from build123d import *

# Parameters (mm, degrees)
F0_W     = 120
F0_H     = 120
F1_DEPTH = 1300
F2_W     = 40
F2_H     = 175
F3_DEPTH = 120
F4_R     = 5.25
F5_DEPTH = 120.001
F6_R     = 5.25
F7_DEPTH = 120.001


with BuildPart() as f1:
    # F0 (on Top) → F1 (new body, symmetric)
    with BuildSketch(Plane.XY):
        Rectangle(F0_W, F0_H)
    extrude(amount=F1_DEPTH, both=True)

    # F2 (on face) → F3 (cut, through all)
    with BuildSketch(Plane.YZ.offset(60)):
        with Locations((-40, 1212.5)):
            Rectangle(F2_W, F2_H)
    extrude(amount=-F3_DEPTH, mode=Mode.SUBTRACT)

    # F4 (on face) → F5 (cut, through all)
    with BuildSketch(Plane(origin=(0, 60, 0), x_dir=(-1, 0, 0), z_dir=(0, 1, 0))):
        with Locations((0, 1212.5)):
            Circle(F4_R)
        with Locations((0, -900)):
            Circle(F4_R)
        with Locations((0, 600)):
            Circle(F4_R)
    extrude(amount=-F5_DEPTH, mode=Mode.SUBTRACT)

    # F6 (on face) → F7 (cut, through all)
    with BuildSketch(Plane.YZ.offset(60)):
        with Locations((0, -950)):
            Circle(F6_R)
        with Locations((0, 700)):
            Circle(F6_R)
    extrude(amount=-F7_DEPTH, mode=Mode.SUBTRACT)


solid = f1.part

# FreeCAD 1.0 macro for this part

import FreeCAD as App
import Part
import Sketcher

V = App.Vector
Q = App.Units.Quantity

doc = App.newDocument("Part")
params = doc.addObject("Spreadsheet::Sheet", "Params")
for row, (alias, value) in enumerate([
    ("sketch1_width", "120 mm"),
    ("pad1_length", "2600 mm"),
    ("sketch2_width", "40 mm"),
    ("sketch2_height", "175 mm"),
    ("sketch3_diameter", "10.5 mm"),
    ("sketch4_diameter", "10.5 mm"),
], start=1):
    params.set(f"A{row}", alias)
    params.set(f"B{row}", "=" + value)
    params.setAlias(f"B{row}", alias)

body = doc.addObject("PartDesign::Body", "Body")

# Sketch on XY plane
sketch1 = body.newObject("Sketcher::SketchObject", "Sketch")
sketch1.AttachmentSupport = (doc.getObject("XY_Plane"), [""])
sketch1.MapMode = "FlatFace"
sketch1.addGeometry([
    Part.LineSegment(V(-60, 60, 0), V(-60, -60, 0)),
    Part.LineSegment(V(-60, -60, 0), V(60, -60, 0)),
    Part.LineSegment(V(60, -60, 0), V(60, 60, 0)),
    Part.LineSegment(V(60, 60, 0), V(-60, 60, 0)),
], False)
sketch1.addConstraint([
    Sketcher.Constraint("Coincident", 0, 2, 1, 1),
    Sketcher.Constraint("Coincident", 1, 2, 2, 1),
    Sketcher.Constraint("Coincident", 2, 2, 3, 1),
    Sketcher.Constraint("Coincident", 3, 2, 0, 1),
    Sketcher.Constraint("Vertical", 0),
    Sketcher.Constraint("Horizontal", 1),
    Sketcher.Constraint("Vertical", 2),
    Sketcher.Constraint("Horizontal", 3),
    Sketcher.Constraint("Symmetric", 0, 2, 2, 2, -1, 1),
    Sketcher.Constraint("Equal", 3, 0),
    Sketcher.Constraint("DistanceX", 1, 1, 1, 2, Q("120 mm")),
])
sketch1.setExpression("Constraints[10]", "Params.sketch1_width")
pad1 = body.newObject("PartDesign::Pad", "Pad")
pad1.Profile = sketch1
pad1.setExpression("Length", "Params.pad1_length")
pad1.Midplane = True

# Sketch on YZ plane
sketch2 = body.newObject("Sketcher::SketchObject", "Sketch001")
sketch2.AttachmentSupport = (doc.getObject("YZ_Plane"), [""])
sketch2.MapMode = "FlatFace"
sketch2.AttachmentOffset = App.Placement(V(0, 0, 60), App.Rotation())
sketch2.addGeometry([
    Part.LineSegment(V(-60, 1300, 0), V(-60, 1125, 0)),
    Part.LineSegment(V(-60, 1125, 0), V(-20, 1125, 0)),
    Part.LineSegment(V(-20, 1125, 0), V(-20, 1300, 0)),
    Part.LineSegment(V(-20, 1300, 0), V(-60, 1300, 0)),
], False)
sketch2.addConstraint([
    Sketcher.Constraint("Coincident", 0, 2, 1, 1),
    Sketcher.Constraint("Coincident", 1, 2, 2, 1),
    Sketcher.Constraint("Coincident", 2, 2, 3, 1),
    Sketcher.Constraint("Coincident", 3, 2, 0, 1),
    Sketcher.Constraint("Vertical", 0),
    Sketcher.Constraint("Horizontal", 1),
    Sketcher.Constraint("Vertical", 2),
    Sketcher.Constraint("Horizontal", 3),
    Sketcher.Constraint("DistanceX", 1, 1, 1, 2, Q("40 mm")),
    Sketcher.Constraint("DistanceY", 0, 2, 0, 1, Q("175 mm")),
    Sketcher.Constraint("DistanceX", 0, 2, -1, 1, Q("60 mm")),
    Sketcher.Constraint("DistanceY", -1, 1, 0, 2, Q("1125 mm")),
])
sketch2.setExpression("Constraints[8]", "Params.sketch2_width")
sketch2.setExpression("Constraints[9]", "Params.sketch2_height")
pocket1 = body.newObject("PartDesign::Pocket", "Pocket")
pocket1.Profile = sketch2
pocket1.Type = "ThroughAll"

# Sketch on XZ plane
sketch3 = body.newObject("Sketcher::SketchObject", "Sketch002")
sketch3.AttachmentSupport = (doc.getObject("XZ_Plane"), [""])
sketch3.MapMode = "FlatFace"
sketch3.AttachmentOffset = App.Placement(V(0, 0, -60), App.Rotation())
sketch3.addGeometry([
    Part.Circle(V(0, 1212, 0), V(0, 0, 1), 5),
    Part.Circle(V(0, -900, 0), V(0, 0, 1), 5),
    Part.Circle(V(0, 600, 0), V(0, 0, 1), 5),
], False)
sketch3.addConstraint([
    Sketcher.Constraint("Equal", 0, 1),
    Sketcher.Constraint("Equal", 1, 2),
    Sketcher.Constraint("PointOnObject", 0, 3, -2),
    Sketcher.Constraint("PointOnObject", 1, 3, -2),
    Sketcher.Constraint("PointOnObject", 2, 3, -2),
    Sketcher.Constraint("Diameter", 0, Q("10.5 mm")),
    Sketcher.Constraint("DistanceY", 1, 3, -1, 1, Q("900 mm")),
    Sketcher.Constraint("DistanceY", -1, 1, 2, 3, Q("600 mm")),
    Sketcher.Constraint("DistanceY", -1, 1, 0, 3, Q("1212.5 mm")),
])
sketch3.setExpression("Constraints[5]", "Params.sketch3_diameter")
pocket2 = body.newObject("PartDesign::Pocket", "Pocket001")
pocket2.Profile = sketch3
pocket2.Type = "ThroughAll"
pocket2.Reversed = True

# Sketch on YZ plane
sketch4 = body.newObject("Sketcher::SketchObject", "Sketch003")
sketch4.AttachmentSupport = (doc.getObject("YZ_Plane"), [""])
sketch4.MapMode = "FlatFace"
sketch4.AttachmentOffset = App.Placement(V(0, 0, 60), App.Rotation())
sketch4.addGeometry([
    Part.Circle(V(0, -950, 0), V(0, 0, 1), 5),
    Part.Circle(V(0, 700, 0), V(0, 0, 1), 5),
], False)
sketch4.addConstraint([
    Sketcher.Constraint("Equal", 0, 1),
    Sketcher.Constraint("PointOnObject", 0, 3, -2),
    Sketcher.Constraint("PointOnObject", 1, 3, -2),
    Sketcher.Constraint("Diameter", 0, Q("10.5 mm")),
    Sketcher.Constraint("DistanceY", 0, 3, -1, 1, Q("950 mm")),
    Sketcher.Constraint("DistanceY", -1, 1, 1, 3, Q("700 mm")),
])
sketch4.setExpression("Constraints[3]", "Params.sketch4_diameter")
pocket3 = body.newObject("PartDesign::Pocket", "Pocket002")
pocket3.Profile = sketch4
pocket3.Type = "ThroughAll"

doc.recompute()
